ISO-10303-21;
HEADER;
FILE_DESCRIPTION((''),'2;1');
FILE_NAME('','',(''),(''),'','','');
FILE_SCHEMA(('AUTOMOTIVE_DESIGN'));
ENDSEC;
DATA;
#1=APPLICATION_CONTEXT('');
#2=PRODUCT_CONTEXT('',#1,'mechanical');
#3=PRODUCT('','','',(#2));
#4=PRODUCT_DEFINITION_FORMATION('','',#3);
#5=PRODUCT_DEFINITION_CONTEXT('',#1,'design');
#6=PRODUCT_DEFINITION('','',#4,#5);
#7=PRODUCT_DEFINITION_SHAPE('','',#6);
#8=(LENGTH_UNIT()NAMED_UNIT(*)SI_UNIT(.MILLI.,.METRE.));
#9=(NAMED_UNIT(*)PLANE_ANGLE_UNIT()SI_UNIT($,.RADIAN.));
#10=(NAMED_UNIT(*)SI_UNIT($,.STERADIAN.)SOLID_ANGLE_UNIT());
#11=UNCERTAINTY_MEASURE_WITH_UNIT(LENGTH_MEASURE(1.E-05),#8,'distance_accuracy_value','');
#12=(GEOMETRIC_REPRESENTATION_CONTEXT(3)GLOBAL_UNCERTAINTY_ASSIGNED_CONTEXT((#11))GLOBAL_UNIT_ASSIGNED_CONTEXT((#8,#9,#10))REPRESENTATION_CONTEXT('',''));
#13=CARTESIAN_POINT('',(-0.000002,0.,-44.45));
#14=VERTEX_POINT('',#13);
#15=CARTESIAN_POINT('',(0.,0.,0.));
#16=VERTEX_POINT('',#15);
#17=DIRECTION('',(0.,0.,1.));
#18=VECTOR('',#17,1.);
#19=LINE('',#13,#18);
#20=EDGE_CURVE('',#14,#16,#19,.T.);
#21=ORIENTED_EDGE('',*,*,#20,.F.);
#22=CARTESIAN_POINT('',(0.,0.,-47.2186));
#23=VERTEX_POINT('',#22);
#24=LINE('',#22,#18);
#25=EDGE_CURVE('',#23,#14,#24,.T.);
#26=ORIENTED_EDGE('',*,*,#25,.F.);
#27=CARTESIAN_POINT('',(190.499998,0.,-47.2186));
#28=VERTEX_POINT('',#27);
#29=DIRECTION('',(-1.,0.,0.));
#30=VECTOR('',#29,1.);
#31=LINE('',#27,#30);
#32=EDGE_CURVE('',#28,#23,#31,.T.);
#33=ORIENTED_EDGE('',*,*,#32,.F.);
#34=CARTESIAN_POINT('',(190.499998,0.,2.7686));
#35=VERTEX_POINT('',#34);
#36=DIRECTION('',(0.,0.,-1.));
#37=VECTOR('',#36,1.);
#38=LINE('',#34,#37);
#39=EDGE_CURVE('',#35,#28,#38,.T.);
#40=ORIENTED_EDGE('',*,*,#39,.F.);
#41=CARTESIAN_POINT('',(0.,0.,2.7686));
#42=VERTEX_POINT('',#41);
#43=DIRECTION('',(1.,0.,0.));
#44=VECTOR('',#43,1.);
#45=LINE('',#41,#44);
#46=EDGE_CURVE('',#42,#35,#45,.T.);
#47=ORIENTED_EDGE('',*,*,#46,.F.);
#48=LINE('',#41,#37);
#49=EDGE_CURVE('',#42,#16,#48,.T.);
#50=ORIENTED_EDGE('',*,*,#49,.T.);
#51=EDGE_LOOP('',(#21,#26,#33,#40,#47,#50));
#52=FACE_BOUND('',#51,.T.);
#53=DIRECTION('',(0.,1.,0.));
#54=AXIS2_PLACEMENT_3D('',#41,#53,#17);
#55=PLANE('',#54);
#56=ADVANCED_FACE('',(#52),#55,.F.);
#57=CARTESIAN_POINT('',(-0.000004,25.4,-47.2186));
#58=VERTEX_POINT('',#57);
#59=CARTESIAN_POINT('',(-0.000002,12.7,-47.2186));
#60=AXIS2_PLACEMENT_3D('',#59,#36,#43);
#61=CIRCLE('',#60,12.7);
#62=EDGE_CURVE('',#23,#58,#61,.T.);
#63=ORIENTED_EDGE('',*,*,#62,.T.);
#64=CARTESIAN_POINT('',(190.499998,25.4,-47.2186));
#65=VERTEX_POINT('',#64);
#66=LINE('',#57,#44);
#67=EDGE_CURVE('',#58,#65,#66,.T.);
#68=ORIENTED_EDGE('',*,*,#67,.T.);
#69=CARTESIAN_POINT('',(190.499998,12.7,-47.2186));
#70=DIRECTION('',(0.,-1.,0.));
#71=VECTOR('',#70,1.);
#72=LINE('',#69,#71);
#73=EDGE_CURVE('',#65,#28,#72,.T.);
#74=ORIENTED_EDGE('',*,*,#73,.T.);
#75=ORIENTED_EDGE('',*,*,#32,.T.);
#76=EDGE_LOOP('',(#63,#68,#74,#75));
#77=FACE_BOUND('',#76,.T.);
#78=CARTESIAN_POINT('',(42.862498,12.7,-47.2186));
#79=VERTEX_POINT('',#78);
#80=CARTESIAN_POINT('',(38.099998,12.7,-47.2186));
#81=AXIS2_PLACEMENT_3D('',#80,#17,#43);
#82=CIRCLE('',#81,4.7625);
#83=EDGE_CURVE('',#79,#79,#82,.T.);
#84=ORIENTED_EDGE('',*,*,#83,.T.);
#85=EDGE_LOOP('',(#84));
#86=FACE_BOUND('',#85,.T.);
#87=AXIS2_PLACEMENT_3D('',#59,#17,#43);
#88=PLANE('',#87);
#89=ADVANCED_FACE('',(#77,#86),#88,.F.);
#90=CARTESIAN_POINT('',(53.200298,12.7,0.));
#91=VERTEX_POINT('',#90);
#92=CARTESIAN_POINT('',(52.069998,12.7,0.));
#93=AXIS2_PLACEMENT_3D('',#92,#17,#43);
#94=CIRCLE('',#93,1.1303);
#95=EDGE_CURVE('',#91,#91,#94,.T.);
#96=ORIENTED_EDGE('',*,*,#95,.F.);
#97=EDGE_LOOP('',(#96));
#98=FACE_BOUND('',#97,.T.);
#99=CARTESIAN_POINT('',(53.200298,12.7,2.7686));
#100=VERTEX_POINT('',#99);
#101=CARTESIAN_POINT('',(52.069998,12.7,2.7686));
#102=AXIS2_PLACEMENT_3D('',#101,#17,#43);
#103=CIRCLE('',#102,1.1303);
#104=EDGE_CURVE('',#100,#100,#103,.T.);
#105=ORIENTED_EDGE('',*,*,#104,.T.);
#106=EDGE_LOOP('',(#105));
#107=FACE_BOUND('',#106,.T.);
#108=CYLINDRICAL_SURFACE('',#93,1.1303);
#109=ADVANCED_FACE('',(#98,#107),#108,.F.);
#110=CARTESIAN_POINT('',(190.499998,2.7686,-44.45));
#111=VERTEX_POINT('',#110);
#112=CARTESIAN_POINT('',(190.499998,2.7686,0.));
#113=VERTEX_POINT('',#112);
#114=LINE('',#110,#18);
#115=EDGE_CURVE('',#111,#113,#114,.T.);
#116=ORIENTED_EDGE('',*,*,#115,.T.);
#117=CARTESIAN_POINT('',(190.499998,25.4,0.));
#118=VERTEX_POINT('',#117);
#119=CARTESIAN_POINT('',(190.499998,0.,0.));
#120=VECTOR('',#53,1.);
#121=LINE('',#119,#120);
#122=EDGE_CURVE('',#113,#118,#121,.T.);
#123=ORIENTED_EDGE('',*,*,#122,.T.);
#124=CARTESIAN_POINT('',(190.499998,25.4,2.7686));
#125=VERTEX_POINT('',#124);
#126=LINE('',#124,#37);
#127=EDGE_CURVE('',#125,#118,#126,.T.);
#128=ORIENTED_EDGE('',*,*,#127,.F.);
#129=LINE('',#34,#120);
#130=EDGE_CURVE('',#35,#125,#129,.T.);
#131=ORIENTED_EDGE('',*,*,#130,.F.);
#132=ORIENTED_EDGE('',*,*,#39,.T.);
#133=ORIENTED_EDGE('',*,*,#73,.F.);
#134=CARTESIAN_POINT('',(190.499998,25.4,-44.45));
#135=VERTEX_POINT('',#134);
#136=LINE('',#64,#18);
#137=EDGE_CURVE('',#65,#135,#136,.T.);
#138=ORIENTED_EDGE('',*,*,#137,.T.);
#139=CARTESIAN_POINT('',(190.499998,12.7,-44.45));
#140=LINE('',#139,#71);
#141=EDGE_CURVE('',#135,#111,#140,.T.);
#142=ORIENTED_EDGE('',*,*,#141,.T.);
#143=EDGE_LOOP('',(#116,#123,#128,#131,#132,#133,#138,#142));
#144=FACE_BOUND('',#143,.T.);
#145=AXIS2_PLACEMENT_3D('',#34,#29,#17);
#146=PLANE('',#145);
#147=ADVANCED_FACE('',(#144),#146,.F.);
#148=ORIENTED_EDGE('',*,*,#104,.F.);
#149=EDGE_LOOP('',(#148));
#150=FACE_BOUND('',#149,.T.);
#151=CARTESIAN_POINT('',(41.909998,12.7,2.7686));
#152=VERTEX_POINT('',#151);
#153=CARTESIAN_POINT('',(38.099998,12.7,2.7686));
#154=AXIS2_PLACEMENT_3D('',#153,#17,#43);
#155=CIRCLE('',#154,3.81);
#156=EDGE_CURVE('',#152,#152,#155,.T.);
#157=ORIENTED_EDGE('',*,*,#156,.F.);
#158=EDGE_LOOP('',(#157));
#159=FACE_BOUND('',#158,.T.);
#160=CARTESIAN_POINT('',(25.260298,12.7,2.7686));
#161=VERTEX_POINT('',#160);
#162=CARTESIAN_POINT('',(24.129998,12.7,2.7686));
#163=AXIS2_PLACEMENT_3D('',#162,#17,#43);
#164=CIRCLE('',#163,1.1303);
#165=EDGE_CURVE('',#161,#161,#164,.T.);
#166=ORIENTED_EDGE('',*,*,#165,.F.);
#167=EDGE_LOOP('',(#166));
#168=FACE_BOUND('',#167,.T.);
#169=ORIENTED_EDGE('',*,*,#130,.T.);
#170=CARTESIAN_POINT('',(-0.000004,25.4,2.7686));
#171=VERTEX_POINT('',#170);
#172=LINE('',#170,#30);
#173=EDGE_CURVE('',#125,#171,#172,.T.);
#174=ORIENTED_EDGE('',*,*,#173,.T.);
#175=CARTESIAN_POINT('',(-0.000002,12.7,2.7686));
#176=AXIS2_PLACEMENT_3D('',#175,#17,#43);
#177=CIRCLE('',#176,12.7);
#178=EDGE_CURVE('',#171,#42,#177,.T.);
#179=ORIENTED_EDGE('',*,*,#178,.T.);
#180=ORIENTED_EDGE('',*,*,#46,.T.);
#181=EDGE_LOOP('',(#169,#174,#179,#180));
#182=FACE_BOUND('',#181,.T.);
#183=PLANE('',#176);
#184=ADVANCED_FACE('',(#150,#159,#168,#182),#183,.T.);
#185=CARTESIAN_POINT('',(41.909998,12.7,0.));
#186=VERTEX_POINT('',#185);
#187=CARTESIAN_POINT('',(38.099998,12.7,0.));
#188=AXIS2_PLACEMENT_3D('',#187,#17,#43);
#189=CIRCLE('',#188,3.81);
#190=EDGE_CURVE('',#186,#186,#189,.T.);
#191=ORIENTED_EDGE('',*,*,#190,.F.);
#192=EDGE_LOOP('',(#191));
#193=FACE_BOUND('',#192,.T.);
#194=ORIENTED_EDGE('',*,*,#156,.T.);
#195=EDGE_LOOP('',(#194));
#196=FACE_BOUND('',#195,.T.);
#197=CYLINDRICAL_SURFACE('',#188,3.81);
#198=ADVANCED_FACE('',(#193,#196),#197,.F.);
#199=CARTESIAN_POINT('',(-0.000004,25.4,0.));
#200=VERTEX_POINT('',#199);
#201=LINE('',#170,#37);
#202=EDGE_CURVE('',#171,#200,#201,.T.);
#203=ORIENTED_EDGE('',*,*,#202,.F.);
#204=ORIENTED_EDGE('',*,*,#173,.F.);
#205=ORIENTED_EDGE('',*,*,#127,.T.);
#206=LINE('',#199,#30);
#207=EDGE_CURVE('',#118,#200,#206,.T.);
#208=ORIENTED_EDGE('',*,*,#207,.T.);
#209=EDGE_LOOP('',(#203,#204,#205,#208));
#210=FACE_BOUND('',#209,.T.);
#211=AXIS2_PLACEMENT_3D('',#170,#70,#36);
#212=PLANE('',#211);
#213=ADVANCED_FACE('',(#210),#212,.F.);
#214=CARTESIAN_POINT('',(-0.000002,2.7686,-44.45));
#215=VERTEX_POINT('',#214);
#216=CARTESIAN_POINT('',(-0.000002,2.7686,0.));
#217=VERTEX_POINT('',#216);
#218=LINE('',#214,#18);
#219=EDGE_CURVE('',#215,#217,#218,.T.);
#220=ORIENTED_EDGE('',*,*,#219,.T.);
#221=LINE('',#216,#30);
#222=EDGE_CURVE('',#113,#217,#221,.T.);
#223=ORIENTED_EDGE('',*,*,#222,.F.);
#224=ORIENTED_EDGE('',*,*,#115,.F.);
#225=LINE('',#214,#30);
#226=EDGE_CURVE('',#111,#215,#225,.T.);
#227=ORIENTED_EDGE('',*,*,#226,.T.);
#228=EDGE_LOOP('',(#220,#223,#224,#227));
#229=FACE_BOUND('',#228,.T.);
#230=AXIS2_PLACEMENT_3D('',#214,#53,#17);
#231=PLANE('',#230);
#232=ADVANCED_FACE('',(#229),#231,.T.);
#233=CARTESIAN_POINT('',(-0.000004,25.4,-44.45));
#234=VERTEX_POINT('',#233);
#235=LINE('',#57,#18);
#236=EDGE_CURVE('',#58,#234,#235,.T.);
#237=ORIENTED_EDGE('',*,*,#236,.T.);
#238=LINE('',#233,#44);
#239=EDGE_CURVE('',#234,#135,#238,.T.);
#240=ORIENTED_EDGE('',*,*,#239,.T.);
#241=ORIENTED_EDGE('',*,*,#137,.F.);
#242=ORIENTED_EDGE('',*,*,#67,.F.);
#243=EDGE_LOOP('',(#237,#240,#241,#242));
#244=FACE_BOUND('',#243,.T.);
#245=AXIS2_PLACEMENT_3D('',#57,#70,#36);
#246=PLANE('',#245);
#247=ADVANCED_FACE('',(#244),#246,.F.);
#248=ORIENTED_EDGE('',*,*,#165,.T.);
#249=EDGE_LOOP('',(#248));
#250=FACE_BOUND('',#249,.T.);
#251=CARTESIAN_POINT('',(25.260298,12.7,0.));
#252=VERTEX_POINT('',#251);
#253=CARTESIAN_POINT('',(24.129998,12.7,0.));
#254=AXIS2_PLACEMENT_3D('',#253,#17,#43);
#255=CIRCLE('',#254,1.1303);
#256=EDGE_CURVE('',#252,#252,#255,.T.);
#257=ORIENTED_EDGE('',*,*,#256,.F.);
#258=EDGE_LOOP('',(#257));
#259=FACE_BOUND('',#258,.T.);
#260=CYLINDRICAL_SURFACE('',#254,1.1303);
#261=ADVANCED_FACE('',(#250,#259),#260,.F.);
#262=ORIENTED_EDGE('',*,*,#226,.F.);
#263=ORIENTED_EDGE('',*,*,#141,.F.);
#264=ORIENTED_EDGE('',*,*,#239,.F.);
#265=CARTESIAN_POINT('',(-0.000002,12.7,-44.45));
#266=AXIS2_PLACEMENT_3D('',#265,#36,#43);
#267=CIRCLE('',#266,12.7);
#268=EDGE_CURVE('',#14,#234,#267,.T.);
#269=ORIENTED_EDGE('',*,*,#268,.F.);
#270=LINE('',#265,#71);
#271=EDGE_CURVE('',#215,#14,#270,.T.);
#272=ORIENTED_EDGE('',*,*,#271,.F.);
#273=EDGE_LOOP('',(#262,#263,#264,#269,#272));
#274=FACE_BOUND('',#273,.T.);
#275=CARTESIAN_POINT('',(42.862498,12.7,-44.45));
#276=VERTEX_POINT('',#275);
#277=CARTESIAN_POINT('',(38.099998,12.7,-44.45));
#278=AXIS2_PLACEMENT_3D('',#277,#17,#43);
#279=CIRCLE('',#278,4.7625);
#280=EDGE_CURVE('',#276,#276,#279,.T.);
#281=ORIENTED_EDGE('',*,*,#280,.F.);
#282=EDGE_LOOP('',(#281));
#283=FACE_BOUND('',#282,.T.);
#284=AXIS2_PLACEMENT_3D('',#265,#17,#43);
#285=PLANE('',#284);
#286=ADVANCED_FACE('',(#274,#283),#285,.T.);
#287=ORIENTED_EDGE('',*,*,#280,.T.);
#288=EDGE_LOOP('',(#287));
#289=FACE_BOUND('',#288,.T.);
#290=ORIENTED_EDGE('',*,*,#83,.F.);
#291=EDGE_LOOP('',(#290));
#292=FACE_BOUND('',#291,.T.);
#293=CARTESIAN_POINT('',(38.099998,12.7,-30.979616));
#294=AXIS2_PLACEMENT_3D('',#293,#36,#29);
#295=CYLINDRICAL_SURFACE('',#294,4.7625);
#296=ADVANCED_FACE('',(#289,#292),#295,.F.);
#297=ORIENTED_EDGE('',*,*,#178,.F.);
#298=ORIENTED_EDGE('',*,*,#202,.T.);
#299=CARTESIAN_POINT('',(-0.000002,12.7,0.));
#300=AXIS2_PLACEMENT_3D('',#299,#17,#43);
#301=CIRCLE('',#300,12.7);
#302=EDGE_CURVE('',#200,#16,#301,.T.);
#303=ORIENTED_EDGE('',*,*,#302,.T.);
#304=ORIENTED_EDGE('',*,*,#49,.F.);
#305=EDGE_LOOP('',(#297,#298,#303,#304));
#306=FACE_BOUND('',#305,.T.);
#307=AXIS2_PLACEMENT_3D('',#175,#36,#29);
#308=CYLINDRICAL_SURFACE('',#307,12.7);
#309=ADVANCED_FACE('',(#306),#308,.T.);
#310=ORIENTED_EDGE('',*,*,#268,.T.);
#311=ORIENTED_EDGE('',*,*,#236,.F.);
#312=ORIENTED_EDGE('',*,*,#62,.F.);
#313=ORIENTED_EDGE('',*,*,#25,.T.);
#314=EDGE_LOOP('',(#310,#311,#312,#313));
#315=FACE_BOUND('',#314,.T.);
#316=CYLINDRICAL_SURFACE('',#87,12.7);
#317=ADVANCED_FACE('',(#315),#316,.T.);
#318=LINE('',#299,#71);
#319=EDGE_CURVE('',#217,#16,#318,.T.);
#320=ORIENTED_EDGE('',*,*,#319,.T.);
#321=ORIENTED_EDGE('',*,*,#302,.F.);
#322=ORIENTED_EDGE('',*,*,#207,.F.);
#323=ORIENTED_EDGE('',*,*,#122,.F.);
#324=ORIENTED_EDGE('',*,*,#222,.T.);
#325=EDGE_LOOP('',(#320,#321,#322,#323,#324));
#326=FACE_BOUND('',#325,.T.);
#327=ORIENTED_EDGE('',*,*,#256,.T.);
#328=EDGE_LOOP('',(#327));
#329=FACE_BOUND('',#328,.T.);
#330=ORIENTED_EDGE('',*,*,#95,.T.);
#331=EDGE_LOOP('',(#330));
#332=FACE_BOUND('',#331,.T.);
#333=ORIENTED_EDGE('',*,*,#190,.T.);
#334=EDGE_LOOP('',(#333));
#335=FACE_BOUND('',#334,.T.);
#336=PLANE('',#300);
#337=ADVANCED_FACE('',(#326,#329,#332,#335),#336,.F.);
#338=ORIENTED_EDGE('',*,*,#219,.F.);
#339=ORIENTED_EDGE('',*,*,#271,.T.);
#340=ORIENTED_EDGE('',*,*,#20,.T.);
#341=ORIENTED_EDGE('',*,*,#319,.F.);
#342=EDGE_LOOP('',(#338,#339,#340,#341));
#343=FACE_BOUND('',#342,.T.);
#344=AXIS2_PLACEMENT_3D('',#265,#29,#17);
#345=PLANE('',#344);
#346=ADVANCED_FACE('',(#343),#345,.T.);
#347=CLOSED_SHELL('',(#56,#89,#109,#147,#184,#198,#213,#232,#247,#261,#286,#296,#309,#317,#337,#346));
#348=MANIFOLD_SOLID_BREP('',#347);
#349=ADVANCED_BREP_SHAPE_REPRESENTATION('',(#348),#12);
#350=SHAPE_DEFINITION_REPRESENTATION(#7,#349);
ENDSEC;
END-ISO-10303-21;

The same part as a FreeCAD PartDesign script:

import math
import FreeCAD as App
import Part
import Sketcher
from FreeCAD import Vector
Q = App.Units.Quantity

doc = App.newDocument("Part")
body = doc.addObject("PartDesign::Body", "Body")

sketch1 = doc.addObject("Sketcher::SketchObject", "Sketch")
body.addObject(sketch1)
sketch1.AttachmentSupport = (doc.XY_Plane, [""])
sketch1.MapMode = "FlatFace"
sketch1.addGeometry(Part.LineSegment(Vector(0, 0, 0), Vector(190, 0, 0)), False)
sketch1.addGeometry(Part.LineSegment(Vector(190, 0, 0), Vector(190, 25, 0)), False)
sketch1.addGeometry(Part.LineSegment(Vector(190, 25, 0), Vector(0, 25, 0)), False)
sketch1.addGeometry(Part.ArcOfCircle(Part.Circle(Vector(0, 13, 0), Vector(0, 0, 1), 13), math.radians(90), math.radians(270)), False)
sketch1.addConstraint(Sketcher.Constraint("Coincident", 0, 2, 1, 1))
sketch1.addConstraint(Sketcher.Constraint("Coincident", 1, 2, 2, 1))
sketch1.addConstraint(Sketcher.Constraint("Tangent", 2, 2, 3, 1))
sketch1.addConstraint(Sketcher.Constraint("Tangent", 3, 2, 0, 1))
sketch1.addConstraint(Sketcher.Constraint("Horizontal", 0))
sketch1.addConstraint(Sketcher.Constraint("Vertical", 1))
sketch1.addConstraint(Sketcher.Constraint("Horizontal", 2))
sketch1.addConstraint(Sketcher.Constraint("Coincident", 3, 2, -1, 1))
sketch1.addConstraint(Sketcher.Constraint("Radius", 3, Q("0.5 in")))
sketch1.addConstraint(Sketcher.Constraint("DistanceX", 0, 1, 0, 2, Q("7.4999999 in")))
pad1 = doc.addObject("PartDesign::Pad", "Pad")
body.addObject(pad1)
pad1.Profile = sketch1
pad1.Length = Q("0.109 in")

sketch2 = doc.addObject("Sketcher::SketchObject", "Sketch001")
body.addObject(sketch2)
sketch2.AttachmentSupport = (doc.XY_Plane, [""])
sketch2.MapMode = "FlatFace"
sketch2.AttachmentOffset = App.Placement(Vector(0, 0, 0.109 * 25.4), App.Rotation())
sketch2.addGeometry(Part.Circle(Vector(38.1, 12.7, 0), Vector(0, 0, 1), 3.8), False)
sketch2.addGeometry(Part.Circle(Vector(24.1, 12.7, 0), Vector(0, 0, 1), 1.1), False)
sketch2.addGeometry(Part.Circle(Vector(52.1, 12.7, 0), Vector(0, 0, 1), 1.1), False)
sketch2.addConstraint(Sketcher.Constraint("Equal", 1, 2))
sketch2.addConstraint(Sketcher.Constraint("Horizontal", 0, 3, 1, 3))
sketch2.addConstraint(Sketcher.Constraint("Horizontal", 1, 3, 2, 3))
sketch2.addConstraint(Sketcher.Constraint("Diameter", 0, Q("0.3 in")))
sketch2.addConstraint(Sketcher.Constraint("Diameter", 1, Q("0.089 in")))
sketch2.addConstraint(Sketcher.Constraint("DistanceX", -1, 1, 0, 3, Q("1.4999999 in")))
sketch2.addConstraint(Sketcher.Constraint("DistanceY", -1, 1, 0, 3, Q("0.5 in")))
sketch2.addConstraint(Sketcher.Constraint("DistanceX", 1, 3, 2, 3, Q("1.1 in")))
sketch2.addConstraint(Sketcher.Constraint("DistanceX", -1, 1, 1, 3, Q("0.9499999 in")))
pocket1 = doc.addObject("PartDesign::Pocket", "Pocket")
body.addObject(pocket1)
pocket1.Profile = sketch2
pocket1.Type = "ThroughAll"

sketch3 = doc.addObject("Sketcher::SketchObject", "Sketch002")
body.addObject(sketch3)
sketch3.AttachmentSupport = (doc.XY_Plane, [""])
sketch3.MapMode = "FlatFace"
sketch3.addGeometry(Part.LineSegment(Vector(0, 2.8, 0), Vector(0, 0, 0)), False)
sketch3.addGeometry(Part.LineSegment(Vector(0, 0, 0), Vector(190.5, 0, 0)), False)
sketch3.addGeometry(Part.LineSegment(Vector(190.5, 0, 0), Vector(190.5, 2.8, 0)), False)
sketch3.addGeometry(Part.LineSegment(Vector(190.5, 2.8, 0), Vector(0, 2.8, 0)), False)
sketch3.addConstraint(Sketcher.Constraint("Coincident", 0, 2, 1, 1))
sketch3.addConstraint(Sketcher.Constraint("Coincident", 1, 2, 2, 1))
sketch3.addConstraint(Sketcher.Constraint("Coincident", 2, 2, 3, 1))
sketch3.addConstraint(Sketcher.Constraint("Coincident", 3, 2, 0, 1))
sketch3.addConstraint(Sketcher.Constraint("Vertical", 0))
sketch3.addConstraint(Sketcher.Constraint("Horizontal", 1))
sketch3.addConstraint(Sketcher.Constraint("Vertical", 2))
sketch3.addConstraint(Sketcher.Constraint("Horizontal", 3))
sketch3.addConstraint(Sketcher.Constraint("Coincident", 0, 2, -1, 1))
sketch3.addConstraint(Sketcher.Constraint("DistanceX", 1, 1, 1, 2, Q("7.5 in")))
sketch3.addConstraint(Sketcher.Constraint("DistanceY", 0, 2, 0, 1, Q("0.109 in")))
pad2 = doc.addObject("PartDesign::Pad", "Pad001")
body.addObject(pad2)
pad2.Profile = sketch3
pad2.Length = Q("1.75 in")
pad2.Reversed = True

sketch4 = doc.addObject("Sketcher::SketchObject", "Sketch003")
body.addObject(sketch4)
sketch4.AttachmentSupport = (doc.XY_Plane, [""])
sketch4.MapMode = "FlatFace"
sketch4.AttachmentOffset = App.Placement(Vector(0, 0, -1.75 * 25.4), App.Rotation())
sketch4.addGeometry(Part.LineSegment(Vector(0, 25, 0), Vector(190, 25, 0)), False)
sketch4.addGeometry(Part.LineSegment(Vector(190, 25, 0), Vector(190, 0, 0)), False)
sketch4.addGeometry(Part.LineSegment(Vector(190, 0, 0), Vector(0, 0, 0)), False)
sketch4.addGeometry(Part.ArcOfCircle(Part.Circle(Vector(0, 13, 0), Vector(0, 0, 1), 13), math.radians(90), math.radians(270)), False)
sketch4.addConstraint(Sketcher.Constraint("Coincident", 0, 2, 1, 1))
sketch4.addConstraint(Sketcher.Constraint("Coincident", 1, 2, 2, 1))
sketch4.addConstraint(Sketcher.Constraint("Tangent", 2, 2, 3, 2))
sketch4.addConstraint(Sketcher.Constraint("Tangent", 3, 1, 0, 1))
sketch4.addConstraint(Sketcher.Constraint("Horizontal", 0))
sketch4.addConstraint(Sketcher.Constraint("Vertical", 1))
sketch4.addConstraint(Sketcher.Constraint("Horizontal", 2))
sketch4.addConstraint(Sketcher.Constraint("Coincident", 2, 2, -1, 1))
sketch4.addConstraint(Sketcher.Constraint("Radius", 3, Q("0.5 in")))
sketch4.addConstraint(Sketcher.Constraint("DistanceX", 0, 1, 0, 2, Q("7.5000001 in")))
pad3 = doc.addObject("PartDesign::Pad", "Pad002")
body.addObject(pad3)
pad3.Profile = sketch4
pad3.Length = Q("0.109 in")
pad3.Reversed = True

sketch5 = doc.addObject("Sketcher::SketchObject", "Sketch004")
body.addObject(sketch5)
sketch5.AttachmentSupport = (doc.XY_Plane, [""])
sketch5.MapMode = "FlatFace"
sketch5.AttachmentOffset = App.Placement(Vector(0, 0, -1.859 * 25.4), App.Rotation())
sketch5.addGeometry(Part.Circle(Vector(38.1, 12.7, 0), Vector(0, 0, 1), 4.8), False)
sketch5.addConstraint(Sketcher.Constraint("Diameter", 0, Q("0.375 in")))
sketch5.addConstraint(Sketcher.Constraint("DistanceX", -1, 1, 0, 3, Q("1.4999999 in")))
sketch5.addConstraint(Sketcher.Constraint("DistanceY", -1, 1, 0, 3, Q("0.5 in")))
pocket2 = doc.addObject("PartDesign::Pocket", "Pocket001")
body.addObject(pocket2)
pocket2.Profile = sketch5
pocket2.Length = Q("0.109 in")
pocket2.Reversed = True

doc.recompute()
